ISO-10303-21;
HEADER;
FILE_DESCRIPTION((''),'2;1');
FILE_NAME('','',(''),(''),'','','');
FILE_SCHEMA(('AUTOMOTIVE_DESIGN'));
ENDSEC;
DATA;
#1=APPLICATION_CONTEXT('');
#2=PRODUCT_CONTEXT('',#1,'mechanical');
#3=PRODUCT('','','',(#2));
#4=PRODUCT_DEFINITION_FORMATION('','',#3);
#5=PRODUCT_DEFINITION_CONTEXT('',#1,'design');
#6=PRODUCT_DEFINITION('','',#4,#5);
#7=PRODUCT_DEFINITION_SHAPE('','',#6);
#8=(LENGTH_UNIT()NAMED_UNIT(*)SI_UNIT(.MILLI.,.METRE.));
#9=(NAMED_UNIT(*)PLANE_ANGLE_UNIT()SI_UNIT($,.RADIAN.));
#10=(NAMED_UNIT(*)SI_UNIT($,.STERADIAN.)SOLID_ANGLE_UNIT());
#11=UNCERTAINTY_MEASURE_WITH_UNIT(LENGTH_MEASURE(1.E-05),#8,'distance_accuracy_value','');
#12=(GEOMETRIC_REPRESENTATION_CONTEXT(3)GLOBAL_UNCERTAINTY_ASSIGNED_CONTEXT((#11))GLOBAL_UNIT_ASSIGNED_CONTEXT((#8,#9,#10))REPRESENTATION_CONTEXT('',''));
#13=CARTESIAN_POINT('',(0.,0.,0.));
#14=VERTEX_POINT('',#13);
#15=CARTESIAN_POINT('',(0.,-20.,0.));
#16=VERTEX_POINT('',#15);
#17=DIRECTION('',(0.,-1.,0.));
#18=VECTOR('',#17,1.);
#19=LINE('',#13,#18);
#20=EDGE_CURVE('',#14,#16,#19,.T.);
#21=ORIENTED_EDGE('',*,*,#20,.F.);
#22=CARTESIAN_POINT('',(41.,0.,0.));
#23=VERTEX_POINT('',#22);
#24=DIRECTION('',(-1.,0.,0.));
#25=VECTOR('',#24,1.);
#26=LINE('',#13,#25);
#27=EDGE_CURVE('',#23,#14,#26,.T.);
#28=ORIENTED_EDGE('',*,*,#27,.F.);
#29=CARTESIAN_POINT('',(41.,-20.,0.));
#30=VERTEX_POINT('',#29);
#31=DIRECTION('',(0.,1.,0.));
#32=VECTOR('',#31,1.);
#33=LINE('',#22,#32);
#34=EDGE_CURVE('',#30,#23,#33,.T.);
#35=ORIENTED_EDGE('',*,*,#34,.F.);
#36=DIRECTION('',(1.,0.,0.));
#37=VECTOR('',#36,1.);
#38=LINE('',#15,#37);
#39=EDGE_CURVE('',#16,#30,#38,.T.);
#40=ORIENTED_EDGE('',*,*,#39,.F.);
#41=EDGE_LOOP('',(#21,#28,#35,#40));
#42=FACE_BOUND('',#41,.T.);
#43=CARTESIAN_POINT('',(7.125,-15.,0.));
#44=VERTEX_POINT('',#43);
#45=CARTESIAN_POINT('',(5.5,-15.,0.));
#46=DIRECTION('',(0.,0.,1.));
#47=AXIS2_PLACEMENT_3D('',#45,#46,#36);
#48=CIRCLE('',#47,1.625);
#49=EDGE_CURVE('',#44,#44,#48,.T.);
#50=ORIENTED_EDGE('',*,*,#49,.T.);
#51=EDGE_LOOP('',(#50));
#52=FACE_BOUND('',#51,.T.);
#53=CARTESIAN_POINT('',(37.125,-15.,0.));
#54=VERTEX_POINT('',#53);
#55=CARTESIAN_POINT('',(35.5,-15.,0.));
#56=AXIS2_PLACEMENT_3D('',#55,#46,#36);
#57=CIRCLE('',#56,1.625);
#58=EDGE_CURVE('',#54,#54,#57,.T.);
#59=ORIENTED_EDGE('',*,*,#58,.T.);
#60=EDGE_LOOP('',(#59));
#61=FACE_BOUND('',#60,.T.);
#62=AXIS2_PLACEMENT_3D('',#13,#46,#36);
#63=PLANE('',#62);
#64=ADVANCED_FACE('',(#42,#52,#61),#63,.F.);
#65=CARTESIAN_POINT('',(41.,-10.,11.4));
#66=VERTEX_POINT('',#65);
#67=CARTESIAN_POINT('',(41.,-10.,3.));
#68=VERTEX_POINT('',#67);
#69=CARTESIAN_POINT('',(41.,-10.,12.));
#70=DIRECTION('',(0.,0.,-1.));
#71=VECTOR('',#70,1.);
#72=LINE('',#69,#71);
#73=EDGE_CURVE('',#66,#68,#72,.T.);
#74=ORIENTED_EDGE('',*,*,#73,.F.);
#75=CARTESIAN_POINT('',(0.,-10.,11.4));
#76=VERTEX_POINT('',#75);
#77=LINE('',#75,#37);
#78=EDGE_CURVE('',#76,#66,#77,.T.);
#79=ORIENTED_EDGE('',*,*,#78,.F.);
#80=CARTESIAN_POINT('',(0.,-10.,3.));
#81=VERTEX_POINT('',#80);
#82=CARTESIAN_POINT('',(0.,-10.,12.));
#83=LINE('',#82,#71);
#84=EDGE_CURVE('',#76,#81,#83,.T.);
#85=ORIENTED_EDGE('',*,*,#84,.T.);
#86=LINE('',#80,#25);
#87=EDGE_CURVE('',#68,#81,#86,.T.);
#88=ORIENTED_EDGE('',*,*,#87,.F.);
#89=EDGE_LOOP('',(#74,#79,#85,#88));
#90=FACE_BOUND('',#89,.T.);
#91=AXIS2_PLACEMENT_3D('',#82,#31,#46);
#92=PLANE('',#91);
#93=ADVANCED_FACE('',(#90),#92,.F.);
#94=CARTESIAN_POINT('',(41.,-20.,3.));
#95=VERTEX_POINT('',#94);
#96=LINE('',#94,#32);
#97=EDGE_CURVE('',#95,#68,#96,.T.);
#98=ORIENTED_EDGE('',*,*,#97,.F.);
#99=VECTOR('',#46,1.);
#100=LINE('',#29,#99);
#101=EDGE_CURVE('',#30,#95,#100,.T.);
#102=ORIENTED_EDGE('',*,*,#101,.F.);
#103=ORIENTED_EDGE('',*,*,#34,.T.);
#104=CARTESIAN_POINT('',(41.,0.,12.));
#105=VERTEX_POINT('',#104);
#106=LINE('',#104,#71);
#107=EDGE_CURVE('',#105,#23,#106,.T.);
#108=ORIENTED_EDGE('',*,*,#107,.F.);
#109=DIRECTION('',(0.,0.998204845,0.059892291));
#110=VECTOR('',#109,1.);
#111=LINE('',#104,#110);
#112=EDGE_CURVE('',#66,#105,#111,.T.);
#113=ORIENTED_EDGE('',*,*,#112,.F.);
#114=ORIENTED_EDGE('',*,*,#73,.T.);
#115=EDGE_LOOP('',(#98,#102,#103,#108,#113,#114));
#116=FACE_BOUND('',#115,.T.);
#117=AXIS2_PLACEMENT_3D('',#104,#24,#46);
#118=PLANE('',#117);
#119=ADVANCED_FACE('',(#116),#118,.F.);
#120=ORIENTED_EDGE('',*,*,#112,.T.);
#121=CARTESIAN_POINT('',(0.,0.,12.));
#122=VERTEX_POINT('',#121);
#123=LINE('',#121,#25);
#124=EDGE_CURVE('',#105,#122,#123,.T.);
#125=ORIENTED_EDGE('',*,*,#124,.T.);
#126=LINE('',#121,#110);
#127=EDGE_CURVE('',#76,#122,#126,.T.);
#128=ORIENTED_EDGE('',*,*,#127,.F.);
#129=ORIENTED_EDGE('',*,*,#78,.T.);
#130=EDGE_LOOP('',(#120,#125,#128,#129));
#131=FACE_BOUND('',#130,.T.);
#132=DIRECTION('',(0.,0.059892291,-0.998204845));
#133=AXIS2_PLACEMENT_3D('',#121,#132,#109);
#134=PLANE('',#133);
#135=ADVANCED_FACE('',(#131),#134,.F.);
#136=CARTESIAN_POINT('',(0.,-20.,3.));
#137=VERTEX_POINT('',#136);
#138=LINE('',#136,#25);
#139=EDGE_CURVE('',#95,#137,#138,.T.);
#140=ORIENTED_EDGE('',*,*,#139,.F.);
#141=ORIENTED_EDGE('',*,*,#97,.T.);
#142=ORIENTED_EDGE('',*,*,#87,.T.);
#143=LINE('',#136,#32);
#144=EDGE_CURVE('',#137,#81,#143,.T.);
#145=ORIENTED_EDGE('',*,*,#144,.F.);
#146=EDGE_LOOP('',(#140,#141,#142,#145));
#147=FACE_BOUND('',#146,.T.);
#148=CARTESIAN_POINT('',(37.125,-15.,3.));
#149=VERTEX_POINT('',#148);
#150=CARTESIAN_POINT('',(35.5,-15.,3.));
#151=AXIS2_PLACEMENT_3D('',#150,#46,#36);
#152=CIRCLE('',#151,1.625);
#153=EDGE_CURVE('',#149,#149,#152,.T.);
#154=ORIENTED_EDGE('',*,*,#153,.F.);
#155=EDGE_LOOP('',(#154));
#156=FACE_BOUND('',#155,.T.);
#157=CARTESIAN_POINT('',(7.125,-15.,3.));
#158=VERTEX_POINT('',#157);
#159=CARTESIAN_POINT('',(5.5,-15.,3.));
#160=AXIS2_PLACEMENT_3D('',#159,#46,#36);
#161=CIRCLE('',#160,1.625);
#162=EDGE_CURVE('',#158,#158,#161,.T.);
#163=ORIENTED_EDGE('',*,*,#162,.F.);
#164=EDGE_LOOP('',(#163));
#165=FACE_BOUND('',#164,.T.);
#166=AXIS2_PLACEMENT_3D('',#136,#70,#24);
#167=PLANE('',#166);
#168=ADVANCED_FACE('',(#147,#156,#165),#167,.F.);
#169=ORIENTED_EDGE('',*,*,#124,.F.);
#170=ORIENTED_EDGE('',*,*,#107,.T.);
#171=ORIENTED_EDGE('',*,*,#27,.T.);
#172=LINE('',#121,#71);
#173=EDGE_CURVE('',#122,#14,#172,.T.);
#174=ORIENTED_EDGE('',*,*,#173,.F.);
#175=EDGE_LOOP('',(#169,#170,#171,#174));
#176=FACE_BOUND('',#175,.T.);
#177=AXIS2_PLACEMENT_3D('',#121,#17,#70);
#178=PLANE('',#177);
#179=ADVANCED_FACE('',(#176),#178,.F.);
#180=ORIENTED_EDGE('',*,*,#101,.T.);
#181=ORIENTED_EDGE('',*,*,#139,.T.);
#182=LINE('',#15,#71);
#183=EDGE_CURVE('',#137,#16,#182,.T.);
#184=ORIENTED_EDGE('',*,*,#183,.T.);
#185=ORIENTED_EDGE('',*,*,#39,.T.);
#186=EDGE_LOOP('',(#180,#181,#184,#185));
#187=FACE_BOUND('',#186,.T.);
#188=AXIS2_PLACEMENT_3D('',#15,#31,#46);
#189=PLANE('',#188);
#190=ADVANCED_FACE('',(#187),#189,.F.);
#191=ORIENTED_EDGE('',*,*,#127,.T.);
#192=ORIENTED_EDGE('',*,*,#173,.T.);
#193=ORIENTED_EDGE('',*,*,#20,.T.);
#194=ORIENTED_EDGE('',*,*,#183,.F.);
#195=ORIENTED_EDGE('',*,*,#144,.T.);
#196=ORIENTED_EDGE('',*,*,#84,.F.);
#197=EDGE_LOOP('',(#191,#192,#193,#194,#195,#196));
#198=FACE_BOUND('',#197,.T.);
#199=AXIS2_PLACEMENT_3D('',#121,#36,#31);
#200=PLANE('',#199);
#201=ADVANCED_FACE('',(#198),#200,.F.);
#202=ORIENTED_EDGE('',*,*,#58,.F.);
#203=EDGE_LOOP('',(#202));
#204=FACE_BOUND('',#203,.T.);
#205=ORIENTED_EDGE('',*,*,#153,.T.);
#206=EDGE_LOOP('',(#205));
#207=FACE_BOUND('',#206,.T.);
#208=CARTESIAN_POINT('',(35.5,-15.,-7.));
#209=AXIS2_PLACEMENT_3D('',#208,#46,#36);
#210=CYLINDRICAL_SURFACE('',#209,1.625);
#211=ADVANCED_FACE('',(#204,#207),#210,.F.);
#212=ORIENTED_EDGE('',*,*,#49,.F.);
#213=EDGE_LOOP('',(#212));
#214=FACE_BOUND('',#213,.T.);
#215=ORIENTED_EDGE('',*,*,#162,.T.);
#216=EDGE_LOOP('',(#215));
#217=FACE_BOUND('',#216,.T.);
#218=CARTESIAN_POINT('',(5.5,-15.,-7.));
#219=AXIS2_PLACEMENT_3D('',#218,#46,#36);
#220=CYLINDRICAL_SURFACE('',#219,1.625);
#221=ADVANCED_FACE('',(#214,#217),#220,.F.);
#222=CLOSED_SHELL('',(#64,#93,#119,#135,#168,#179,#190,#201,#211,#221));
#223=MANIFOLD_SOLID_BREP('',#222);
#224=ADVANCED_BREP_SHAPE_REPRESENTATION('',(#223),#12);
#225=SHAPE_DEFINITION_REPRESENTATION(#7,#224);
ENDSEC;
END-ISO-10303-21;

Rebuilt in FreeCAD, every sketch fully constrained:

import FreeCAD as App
import Part
import Sketcher

V = App.Vector

doc = App.newDocument("Part")
params = doc.addObject("Spreadsheet::Sheet", "Params")
for row, (alias, value) in enumerate([
    ("sketch1_width", "41 mm"),
    ("sketch1_height", "10 mm"),
    ("pad1_length", "12 mm"),
    ("sketch2_width", "41 mm"),
    ("sketch2_height", "3 mm"),
    ("pad2_length", "10 mm"),
    ("sketch3_diameter", "3.25 mm"),
    ("pocket1_length", "10 mm"),
    ("sketch4_width", "10 mm"),
    ("sketch4_height", "0.6 mm"),
], start=1):
    params.set(f"A{row}", alias)
    params.set(f"B{row}", "=" + value)
    params.setAlias(f"B{row}", alias)

body = doc.addObject("PartDesign::Body", "Body")

# Sketch on XY plane
sketch1 = body.newObject("Sketcher::SketchObject", "Sketch")
sketch1.AttachmentSupport = (doc.getObject("XY_Plane"), [""])
sketch1.MapMode = "FlatFace"
sketch1.addGeometry([
    Part.LineSegment(V(0, 0, 0), V(0, -10, 0)),
    Part.LineSegment(V(0, -10, 0), V(41, -10, 0)),
    Part.LineSegment(V(41, -10, 0), V(41, 0, 0)),
    Part.LineSegment(V(41, 0, 0), V(0, 0, 0)),
], False)
sketch1.addConstraint([
    Sketcher.Constraint("Coincident", 0, 2, 1, 1),
    Sketcher.Constraint("Coincident", 1, 2, 2, 1),
    Sketcher.Constraint("Coincident", 2, 2, 3, 1),
    Sketcher.Constraint("Coincident", 3, 2, 0, 1),
    Sketcher.Constraint("Vertical", 0),
    Sketcher.Constraint("Horizontal", 1),
    Sketcher.Constraint("Vertical", 2),
    Sketcher.Constraint("Horizontal", 3),
    Sketcher.Constraint("Coincident", 3, 2, -1, 1),
    Sketcher.Constraint("DistanceX", 1, 1, 1, 2, 41.0),
    Sketcher.Constraint("DistanceY", 0, 2, 0, 1, 10.0),
])
sketch1.setExpression("Constraints[9]", "Params.sketch1_width")
sketch1.setExpression("Constraints[10]", "Params.sketch1_height")
pad1 = body.newObject("PartDesign::Pad", "Pad")
pad1.Profile = sketch1
pad1.setExpression("Length", "Params.pad1_length")

# Sketch on XZ plane
sketch2 = body.newObject("Sketcher::SketchObject", "Sketch001")
sketch2.AttachmentSupport = (doc.getObject("XZ_Plane"), [""])
sketch2.MapMode = "FlatFace"
sketch2.AttachmentOffset = App.Placement(V(0, 0, 10), App.Rotation())
sketch2.addGeometry([
    Part.LineSegment(V(0, 3, 0), V(0, 0, 0)),
    Part.LineSegment(V(0, 0, 0), V(41, 0, 0)),
    Part.LineSegment(V(41, 0, 0), V(41, 3, 0)),
    Part.LineSegment(V(41, 3, 0), V(0, 3, 0)),
], False)
sketch2.addConstraint([
    Sketcher.Constraint("Coincident", 0, 2, 1, 1),
    Sketcher.Constraint("Coincident", 1, 2, 2, 1),
    Sketcher.Constraint("Coincident", 2, 2, 3, 1),
    Sketcher.Constraint("Coincident", 3, 2, 0, 1),
    Sketcher.Constraint("Vertical", 0),
    Sketcher.Constraint("Horizontal", 1),
    Sketcher.Constraint("Vertical", 2),
    Sketcher.Constraint("Horizontal", 3),
    Sketcher.Constraint("Coincident", 0, 2, -1, 1),
    Sketcher.Constraint("DistanceX", 1, 1, 1, 2, 41.0),
    Sketcher.Constraint("DistanceY", 0, 2, 0, 1, 3.0),
])
sketch2.setExpression("Constraints[9]", "Params.sketch2_width")
sketch2.setExpression("Constraints[10]", "Params.sketch2_height")
pad2 = body.newObject("PartDesign::Pad", "Pad001")
pad2.Profile = sketch2
pad2.setExpression("Length", "Params.pad2_length")

# Sketch on XY plane
sketch3 = body.newObject("Sketcher::SketchObject", "Sketch002")
sketch3.AttachmentSupport = (doc.getObject("XY_Plane"), [""])
sketch3.MapMode = "FlatFace"
sketch3.AttachmentOffset = App.Placement(V(0, 0, 3), App.Rotation())
sketch3.addGeometry([
    Part.Circle(V(5.5, -15, 0), V(0, 0, 1), 1.6),
    Part.Circle(V(35.5, -15, 0), V(0, 0, 1), 1.6),
], False)
sketch3.addConstraint([
    Sketcher.Constraint("Equal", 0, 1),
    Sketcher.Constraint("Horizontal", 0, 3, 1, 3),
    Sketcher.Constraint("Diameter", 0, 3.25),
    Sketcher.Constraint("DistanceY", 0, 3, -1, 1, 15.0),
    Sketcher.Constraint("DistanceX", 0, 3, 1, 3, 30.0),
    Sketcher.Constraint("DistanceX", -1, 1, 0, 3, 5.5),
])
sketch3.setExpression("Constraints[2]", "Params.sketch3_diameter")
pocket1 = body.newObject("PartDesign::Pocket", "Pocket")
pocket1.Profile = sketch3
pocket1.setExpression("Length", "Params.pocket1_length")

# Sketch on YZ plane
sketch4 = body.newObject("Sketcher::SketchObject", "Sketch003")
sketch4.AttachmentSupport = (doc.getObject("YZ_Plane"), [""])
sketch4.MapMode = "FlatFace"
sketch4.AttachmentOffset = App.Placement(V(0, 0, 41), App.Rotation())
sketch4.addGeometry([
    Part.LineSegment(V(-10, 11.4, 0), V(0, 12, 0)),
    Part.LineSegment(V(0, 12, 0), V(-10, 12, 0)),
    Part.LineSegment(V(-10, 12, 0), V(-10, 11.4, 0)),
], False)
sketch4.addConstraint([
    Sketcher.Constraint("Coincident", 0, 2, 1, 1),
    Sketcher.Constraint("Coincident", 1, 2, 2, 1),
    Sketcher.Constraint("Coincident", 2, 2, 0, 1),
    Sketcher.Constraint("Horizontal", 1),
    Sketcher.Constraint("Vertical", 2),
    Sketcher.Constraint("PointOnObject", 0, 2, -2),
    Sketcher.Constraint("DistanceX", 1, 2, 1, 1, 10.0),
    Sketcher.Constraint("DistanceY", 2, 2, 2, 1, 0.6),
    Sketcher.Constraint("DistanceY", -1, 1, 0, 2, 12.0),
])
sketch4.setExpression("Constraints[6]", "Params.sketch4_width")
sketch4.setExpression("Constraints[7]", "Params.sketch4_height")
pocket2 = body.newObject("PartDesign::Pocket", "Pocket001")
pocket2.Profile = sketch4
pocket2.Type = "ThroughAll"

doc.recompute()
